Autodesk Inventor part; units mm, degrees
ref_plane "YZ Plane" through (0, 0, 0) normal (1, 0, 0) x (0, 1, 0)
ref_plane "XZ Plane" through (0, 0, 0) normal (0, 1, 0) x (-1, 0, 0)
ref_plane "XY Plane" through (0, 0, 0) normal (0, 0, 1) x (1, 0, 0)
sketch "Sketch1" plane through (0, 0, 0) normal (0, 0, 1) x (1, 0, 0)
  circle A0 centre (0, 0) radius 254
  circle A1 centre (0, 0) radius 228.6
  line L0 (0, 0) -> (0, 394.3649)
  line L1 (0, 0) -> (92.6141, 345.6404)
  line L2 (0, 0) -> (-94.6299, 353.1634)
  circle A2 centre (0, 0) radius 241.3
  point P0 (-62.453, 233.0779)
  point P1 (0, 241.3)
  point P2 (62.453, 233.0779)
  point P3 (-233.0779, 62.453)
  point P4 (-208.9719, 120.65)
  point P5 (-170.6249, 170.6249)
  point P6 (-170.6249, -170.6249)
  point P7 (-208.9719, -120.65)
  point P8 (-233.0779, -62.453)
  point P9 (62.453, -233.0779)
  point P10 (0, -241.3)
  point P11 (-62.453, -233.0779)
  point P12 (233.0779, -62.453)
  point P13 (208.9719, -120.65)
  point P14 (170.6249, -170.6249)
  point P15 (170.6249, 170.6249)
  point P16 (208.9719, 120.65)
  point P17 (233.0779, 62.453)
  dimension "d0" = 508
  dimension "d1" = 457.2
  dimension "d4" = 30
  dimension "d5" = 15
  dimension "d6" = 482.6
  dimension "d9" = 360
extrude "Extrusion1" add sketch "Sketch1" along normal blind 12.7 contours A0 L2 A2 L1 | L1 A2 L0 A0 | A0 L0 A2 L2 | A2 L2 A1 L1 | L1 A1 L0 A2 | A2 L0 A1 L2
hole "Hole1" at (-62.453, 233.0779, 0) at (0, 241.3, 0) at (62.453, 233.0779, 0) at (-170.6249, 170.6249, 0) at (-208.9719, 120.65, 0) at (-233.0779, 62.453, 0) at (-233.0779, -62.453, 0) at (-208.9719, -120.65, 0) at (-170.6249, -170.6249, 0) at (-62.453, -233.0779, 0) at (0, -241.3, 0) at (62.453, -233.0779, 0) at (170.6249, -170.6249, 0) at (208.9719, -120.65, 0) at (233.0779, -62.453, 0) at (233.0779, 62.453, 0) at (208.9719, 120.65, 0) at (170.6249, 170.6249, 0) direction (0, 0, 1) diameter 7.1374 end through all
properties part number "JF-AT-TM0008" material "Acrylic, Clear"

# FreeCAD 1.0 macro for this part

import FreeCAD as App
import Part
import Sketcher

V = App.Vector
Q = App.Units.Quantity

doc = App.newDocument("Part")
body = doc.addObject("PartDesign::Body", "Body")

# Sketch on XY plane
sketch1 = body.newObject("Sketcher::SketchObject", "Sketch")
sketch1.AttachmentSupport = (doc.getObject("XY_Plane"), [""])
sketch1.MapMode = "FlatFace"
sketch1.addGeometry([
    Part.Circle(V(0, 0, 0), V(0, 0, 1), 254),
    Part.Circle(V(0, 0, 0), V(0, 0, 1), 229),
], False)
sketch1.addConstraint([
    Sketcher.Constraint("Coincident", 0, 3, -1, 1),
    Sketcher.Constraint("Coincident", 1, 3, -1, 1),
    Sketcher.Constraint("Diameter", 0, Q("20 in")),
    Sketcher.Constraint("Diameter", 1, Q("18 in")),
])
pad1 = body.newObject("PartDesign::Pad", "Pad")
pad1.Profile = sketch1
pad1.Length = Q("0.5 in")

# Sketch on XY plane
sketch2 = body.newObject("Sketcher::SketchObject", "Sketch001")
sketch2.AttachmentSupport = (doc.getObject("XY_Plane"), [""])
sketch2.MapMode = "FlatFace"
sketch2.addGeometry([
    Part.Circle(V(-62.5, 233.1, 0), V(0, 0, 1), 3.6),  # 0
    Part.Circle(V(0, 241.3, 0), V(0, 0, 1), 3.6),  # 1
    Part.Circle(V(62.5, 233.1, 0), V(0, 0, 1), 3.6),  # 2
    Part.Circle(V(-170.6, 170.6, 0), V(0, 0, 1), 3.6),  # 3
    Part.Circle(V(-209, 120.7, 0), V(0, 0, 1), 3.6),  # 4
    Part.Circle(V(-233.1, 62.5, 0), V(0, 0, 1), 3.6),  # 5
    Part.Circle(V(-233.1, -62.5, 0), V(0, 0, 1), 3.6),  # 6
    Part.Circle(V(-209, -120.7, 0), V(0, 0, 1), 3.6),  # 7
    Part.Circle(V(-170.6, -170.6, 0), V(0, 0, 1), 3.6),  # 8
    Part.Circle(V(-62.5, -233.1, 0), V(0, 0, 1), 3.6),  # 9
    Part.Circle(V(0, -241.3, 0), V(0, 0, 1), 3.6),  # 10
    Part.Circle(V(62.5, -233.1, 0), V(0, 0, 1), 3.6),  # 11
    Part.Circle(V(170.6, -170.6, 0), V(0, 0, 1), 3.6),  # 12
    Part.Circle(V(209, -120.7, 0), V(0, 0, 1), 3.6),  # 13
    Part.Circle(V(233.1, -62.5, 0), V(0, 0, 1), 3.6),  # 14
    Part.Circle(V(233.1, 62.5, 0), V(0, 0, 1), 3.6),  # 15
    Part.Circle(V(209, 120.7, 0), V(0, 0, 1), 3.6),  # 16
    Part.Circle(V(170.6, 170.6, 0), V(0, 0, 1), 3.6),  # 17
], False)
sketch2.addConstraint([
    Sketcher.Constraint("Equal", 0, 1),
    Sketcher.Constraint("Equal", 1, 2),
    Sketcher.Constraint("Equal", 2, 3),
    Sketcher.Constraint("Equal", 3, 4),
    Sketcher.Constraint("Equal", 4, 5),
    Sketcher.Constraint("Equal", 5, 6),
    Sketcher.Constraint("Equal", 6, 7),
    Sketcher.Constraint("Equal", 7, 8),
    Sketcher.Constraint("Equal", 8, 9),
    Sketcher.Constraint("Equal", 9, 10),
    Sketcher.Constraint("Equal", 10, 11),
    Sketcher.Constraint("Equal", 11, 12),
    Sketcher.Constraint("Equal", 12, 13),
    Sketcher.Constraint("Equal", 13, 14),
    Sketcher.Constraint("Equal", 14, 15),
    Sketcher.Constraint("Equal", 15, 16),
    Sketcher.Constraint("Equal", 16, 17),
    Sketcher.Constraint("Symmetric", 2, 3, 9, 3, -1, 1),
    Sketcher.Constraint("Symmetric", 1, 3, 10, 3, -1, 1),
    Sketcher.Constraint("Symmetric", 0, 3, 11, 3, -1, 1),
    Sketcher.Constraint("Symmetric", 3, 3, 12, 3, -1, 1),
    Sketcher.Constraint("Symmetric", 4, 3, 13, 3, -1, 1),
    Sketcher.Constraint("Symmetric", 5, 3, 14, 3, -1, 1),
    Sketcher.Constraint("Symmetric", 6, 3, 15, 3, -1, 1),
    Sketcher.Constraint("Symmetric", 7, 3, 16, 3, -1, 1),
    Sketcher.Constraint("Symmetric", 8, 3, 17, 3, -1, 1),
    Sketcher.Constraint("Symmetric", 0, 3, 2, 3, -2),
    Sketcher.Constraint("Symmetric", 8, 3, 12, 3, -2),
    Sketcher.Constraint("Symmetric", 7, 3, 13, 3, -2),
    Sketcher.Constraint("Symmetric", 6, 3, 14, 3, -2),
    Sketcher.Constraint("PointOnObject", 1, 3, -2),
    Sketcher.Constraint("Diameter", 0, Q("0.281 in")),
    Sketcher.Constraint("DistanceY", -1, 1, 1, 3, Q("9.5 in")),
    Sketcher.Constraint("DistanceY", 7, 3, 4, 3, Q("9.5 in")),
    Sketcher.Constraint("DistanceY", -1, 1, 0, 3, Q("9.1763 in")),
    Sketcher.Constraint("DistanceX", 5, 3, -1, 1, Q("9.1763 in")),
    Sketcher.Constraint("DistanceX", 3, 3, 2, 3, Q("9.1763 in")),
    Sketcher.Constraint("DistanceY", 6, 3, 3, 3, Q("9.1763 in")),
    Sketcher.Constraint("DistanceX", 0, 3, -1, 1, 62.453),
    Sketcher.Constraint("DistanceY", -1, 1, 3, 3, 170.625),
    Sketcher.Constraint("DistanceX", 4, 3, -1, 1, 208.972),
])
doc.recompute()
hole = body.newObject("PartDesign::Hole", "Hole")
hole.Profile = sketch2
hole.ThreadType = "None"
hole.Diameter = Q("0.281 in")
hole.DepthType = "ThroughAll"
hole.Reversed = True

doc.recompute()
